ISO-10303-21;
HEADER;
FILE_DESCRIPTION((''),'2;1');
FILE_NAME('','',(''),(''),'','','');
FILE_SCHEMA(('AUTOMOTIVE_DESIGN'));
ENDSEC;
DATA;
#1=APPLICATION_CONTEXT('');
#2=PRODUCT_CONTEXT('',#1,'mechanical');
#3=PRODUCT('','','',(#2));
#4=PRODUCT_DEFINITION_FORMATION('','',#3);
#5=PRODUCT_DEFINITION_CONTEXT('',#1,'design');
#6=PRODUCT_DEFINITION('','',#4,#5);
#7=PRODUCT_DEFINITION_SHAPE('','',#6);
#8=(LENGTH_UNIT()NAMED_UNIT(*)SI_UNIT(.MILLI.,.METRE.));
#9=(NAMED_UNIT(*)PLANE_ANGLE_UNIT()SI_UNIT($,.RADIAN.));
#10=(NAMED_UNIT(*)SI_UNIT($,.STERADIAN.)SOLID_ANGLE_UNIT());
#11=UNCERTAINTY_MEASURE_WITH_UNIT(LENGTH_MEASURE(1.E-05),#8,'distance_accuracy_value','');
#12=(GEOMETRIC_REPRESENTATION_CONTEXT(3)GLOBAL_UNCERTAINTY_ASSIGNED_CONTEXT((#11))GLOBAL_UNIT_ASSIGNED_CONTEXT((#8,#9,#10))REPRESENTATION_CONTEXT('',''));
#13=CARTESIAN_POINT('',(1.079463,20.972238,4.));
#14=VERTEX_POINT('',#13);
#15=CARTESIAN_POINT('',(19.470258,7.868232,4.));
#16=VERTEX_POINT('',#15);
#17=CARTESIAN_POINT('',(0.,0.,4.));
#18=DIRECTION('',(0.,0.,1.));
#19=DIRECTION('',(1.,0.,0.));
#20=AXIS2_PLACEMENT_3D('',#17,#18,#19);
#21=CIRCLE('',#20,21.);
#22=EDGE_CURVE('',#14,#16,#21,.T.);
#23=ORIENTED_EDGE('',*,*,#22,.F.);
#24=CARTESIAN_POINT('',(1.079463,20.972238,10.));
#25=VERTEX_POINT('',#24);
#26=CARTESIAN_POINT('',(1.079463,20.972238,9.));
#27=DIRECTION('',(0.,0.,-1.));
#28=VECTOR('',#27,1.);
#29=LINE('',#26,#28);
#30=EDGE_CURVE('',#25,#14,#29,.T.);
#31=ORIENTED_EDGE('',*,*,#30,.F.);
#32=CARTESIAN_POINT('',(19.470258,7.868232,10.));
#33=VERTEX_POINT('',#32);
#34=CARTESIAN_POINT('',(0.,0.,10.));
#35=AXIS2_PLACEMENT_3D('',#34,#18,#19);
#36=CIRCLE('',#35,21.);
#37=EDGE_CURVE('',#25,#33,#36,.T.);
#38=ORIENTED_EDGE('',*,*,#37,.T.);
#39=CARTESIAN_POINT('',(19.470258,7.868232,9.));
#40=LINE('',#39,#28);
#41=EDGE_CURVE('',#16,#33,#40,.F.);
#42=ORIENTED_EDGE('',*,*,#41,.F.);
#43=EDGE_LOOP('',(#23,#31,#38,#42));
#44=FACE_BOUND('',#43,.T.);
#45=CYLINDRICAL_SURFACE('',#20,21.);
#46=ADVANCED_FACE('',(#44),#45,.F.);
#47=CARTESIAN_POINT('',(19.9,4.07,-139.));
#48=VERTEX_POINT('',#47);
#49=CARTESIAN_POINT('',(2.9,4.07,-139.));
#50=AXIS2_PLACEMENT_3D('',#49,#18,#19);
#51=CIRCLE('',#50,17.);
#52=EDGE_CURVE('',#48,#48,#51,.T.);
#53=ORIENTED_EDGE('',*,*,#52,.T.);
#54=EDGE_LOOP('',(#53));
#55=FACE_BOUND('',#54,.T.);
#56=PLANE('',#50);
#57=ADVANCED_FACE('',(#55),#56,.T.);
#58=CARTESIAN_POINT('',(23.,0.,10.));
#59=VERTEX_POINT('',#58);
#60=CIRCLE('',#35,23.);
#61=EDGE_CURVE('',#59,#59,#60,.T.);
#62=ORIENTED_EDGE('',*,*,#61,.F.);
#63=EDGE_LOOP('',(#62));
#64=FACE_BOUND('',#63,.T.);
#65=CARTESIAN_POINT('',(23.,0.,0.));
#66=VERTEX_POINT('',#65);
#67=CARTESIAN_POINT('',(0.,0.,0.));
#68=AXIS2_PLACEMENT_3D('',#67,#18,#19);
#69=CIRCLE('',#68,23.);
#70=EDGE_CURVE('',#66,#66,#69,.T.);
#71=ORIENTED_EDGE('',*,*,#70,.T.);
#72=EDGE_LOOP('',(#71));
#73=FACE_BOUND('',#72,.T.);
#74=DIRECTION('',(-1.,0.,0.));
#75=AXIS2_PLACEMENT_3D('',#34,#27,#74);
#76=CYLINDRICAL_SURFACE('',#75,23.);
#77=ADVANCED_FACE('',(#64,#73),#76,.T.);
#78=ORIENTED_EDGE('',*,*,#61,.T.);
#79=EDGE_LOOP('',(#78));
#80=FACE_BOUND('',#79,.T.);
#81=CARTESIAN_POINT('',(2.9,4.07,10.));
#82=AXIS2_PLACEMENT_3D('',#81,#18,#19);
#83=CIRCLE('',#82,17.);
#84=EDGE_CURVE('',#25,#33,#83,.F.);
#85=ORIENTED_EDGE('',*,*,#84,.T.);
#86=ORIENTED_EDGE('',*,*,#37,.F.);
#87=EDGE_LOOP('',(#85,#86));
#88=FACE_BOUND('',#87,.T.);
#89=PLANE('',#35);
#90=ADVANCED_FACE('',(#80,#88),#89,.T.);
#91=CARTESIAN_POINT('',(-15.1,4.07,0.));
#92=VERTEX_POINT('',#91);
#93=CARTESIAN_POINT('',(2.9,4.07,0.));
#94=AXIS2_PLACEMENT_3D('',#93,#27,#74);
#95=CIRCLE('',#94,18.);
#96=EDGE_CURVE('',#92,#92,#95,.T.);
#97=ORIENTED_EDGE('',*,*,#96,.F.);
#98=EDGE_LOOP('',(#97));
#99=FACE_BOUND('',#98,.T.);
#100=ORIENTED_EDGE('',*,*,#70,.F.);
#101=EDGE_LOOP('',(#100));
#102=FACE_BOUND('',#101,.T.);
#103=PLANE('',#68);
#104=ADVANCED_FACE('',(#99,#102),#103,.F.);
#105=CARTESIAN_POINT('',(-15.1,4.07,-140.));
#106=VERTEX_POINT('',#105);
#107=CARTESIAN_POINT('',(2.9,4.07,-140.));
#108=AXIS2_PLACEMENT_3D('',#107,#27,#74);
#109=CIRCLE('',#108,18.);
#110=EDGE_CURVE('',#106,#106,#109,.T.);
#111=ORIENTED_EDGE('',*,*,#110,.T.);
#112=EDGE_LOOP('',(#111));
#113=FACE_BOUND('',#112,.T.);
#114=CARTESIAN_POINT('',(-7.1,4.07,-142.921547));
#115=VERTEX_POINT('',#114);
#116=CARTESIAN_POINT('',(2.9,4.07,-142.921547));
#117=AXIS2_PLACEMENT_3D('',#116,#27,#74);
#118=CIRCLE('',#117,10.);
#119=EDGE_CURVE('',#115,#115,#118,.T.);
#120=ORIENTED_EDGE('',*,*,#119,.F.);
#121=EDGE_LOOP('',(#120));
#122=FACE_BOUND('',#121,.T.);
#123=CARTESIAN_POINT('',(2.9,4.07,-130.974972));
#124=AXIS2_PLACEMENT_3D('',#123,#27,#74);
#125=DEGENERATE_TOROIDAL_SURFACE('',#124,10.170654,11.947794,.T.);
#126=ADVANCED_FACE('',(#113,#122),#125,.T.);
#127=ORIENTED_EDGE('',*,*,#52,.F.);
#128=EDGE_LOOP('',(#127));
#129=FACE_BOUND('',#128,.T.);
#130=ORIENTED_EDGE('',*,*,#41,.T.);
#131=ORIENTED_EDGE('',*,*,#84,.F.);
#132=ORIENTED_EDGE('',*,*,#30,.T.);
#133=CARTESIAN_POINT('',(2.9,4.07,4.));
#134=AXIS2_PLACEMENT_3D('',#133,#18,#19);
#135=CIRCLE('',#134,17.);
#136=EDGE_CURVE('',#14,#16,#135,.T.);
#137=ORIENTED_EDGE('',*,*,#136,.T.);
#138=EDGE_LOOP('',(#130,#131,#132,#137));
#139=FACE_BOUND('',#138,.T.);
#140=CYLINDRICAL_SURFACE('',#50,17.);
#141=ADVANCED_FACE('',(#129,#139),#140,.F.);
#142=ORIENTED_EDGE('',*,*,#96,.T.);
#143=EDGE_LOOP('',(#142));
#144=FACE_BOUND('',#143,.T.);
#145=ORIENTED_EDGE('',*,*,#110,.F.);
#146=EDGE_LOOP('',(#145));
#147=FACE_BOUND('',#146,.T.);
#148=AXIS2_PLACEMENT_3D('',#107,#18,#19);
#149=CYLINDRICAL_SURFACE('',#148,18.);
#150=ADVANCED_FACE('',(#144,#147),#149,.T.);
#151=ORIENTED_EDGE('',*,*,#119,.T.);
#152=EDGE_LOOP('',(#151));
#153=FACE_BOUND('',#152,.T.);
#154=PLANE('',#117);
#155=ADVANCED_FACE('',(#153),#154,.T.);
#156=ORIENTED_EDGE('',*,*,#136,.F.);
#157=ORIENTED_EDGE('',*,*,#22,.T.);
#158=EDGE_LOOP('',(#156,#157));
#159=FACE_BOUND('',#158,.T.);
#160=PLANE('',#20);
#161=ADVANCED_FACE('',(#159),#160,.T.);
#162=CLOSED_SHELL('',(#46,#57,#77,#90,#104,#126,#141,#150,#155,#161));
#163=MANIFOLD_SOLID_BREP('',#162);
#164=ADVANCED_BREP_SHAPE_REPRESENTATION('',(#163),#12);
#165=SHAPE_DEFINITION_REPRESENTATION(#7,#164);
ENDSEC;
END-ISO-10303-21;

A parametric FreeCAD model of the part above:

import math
import FreeCAD as App
import Part
import Sketcher
from FreeCAD import Vector

doc = App.newDocument("Part")
body = doc.addObject("PartDesign::Body", "Body")

sketch1 = body.newObject("Sketcher::SketchObject", "Sketch")
sketch1.AttachmentSupport = (doc.getObject("XY_Plane"), [""])
sketch1.MapMode = "FlatFace"
sketch1.addGeometry(Part.Circle(Vector(0, 0, 0), Vector(0, 0, 1), 23), False)
sketch1.addConstraint([
    Sketcher.Constraint("Coincident", 0, 3, -1, 1),
    Sketcher.Constraint("Diameter", 0, 46.0),
])
pad1 = body.newObject("PartDesign::Pad", "Pad")
pad1.Profile = sketch1
pad1.Length = 10

sketch2 = body.newObject("Sketcher::SketchObject", "Sketch001")
sketch2.AttachmentSupport = (doc.getObject("XY_Plane"), [""])
sketch2.MapMode = "FlatFace"
sketch2.addGeometry(Part.Circle(Vector(3, 4, 0), Vector(0, 0, 1), 18), False)
sketch2.addConstraint([
    Sketcher.Constraint("Diameter", 0, 36.0),
    Sketcher.Constraint("DistanceX", -1, 1, 0, 3, 2.9),
    Sketcher.Constraint("DistanceY", -1, 1, 0, 3, 4.07),
])
pad2 = body.newObject("PartDesign::Pad", "Pad001")
pad2.Profile = sketch2
pad2.Length = 140
pad2.Reversed = True

sketch3 = body.newObject("Sketcher::SketchObject", "Sketch002")
sketch3.AttachmentSupport = (doc.getObject("XY_Plane"), [""])
sketch3.MapMode = "FlatFace"
sketch3.AttachmentOffset = App.Placement(Vector(0, 0, 10), App.Rotation())
sketch3.addGeometry(Part.Circle(Vector(0, 0, 0), Vector(0, 0, 1), 21), False)
sketch3.addConstraint([
    Sketcher.Constraint("Coincident", 0, 3, -1, 1),
    Sketcher.Constraint("Diameter", 0, 42.0),
])
pocket1 = body.newObject("PartDesign::Pocket", "Pocket")
pocket1.Profile = sketch3
pocket1.Length = 6

sketch4 = body.newObject("Sketcher::SketchObject", "Sketch003")
sketch4.AttachmentSupport = (doc.getObject("XY_Plane"), [""])
sketch4.MapMode = "FlatFace"
sketch4.AttachmentOffset = App.Placement(Vector(0, 0, 4), App.Rotation())
sketch4.addGeometry(Part.Circle(Vector(3, 4, 0), Vector(0, 0, 1), 17), False)
sketch4.addConstraint([
    Sketcher.Constraint("Diameter", 0, 34.0),
    Sketcher.Constraint("DistanceX", -1, 1, 0, 3, 2.9),
    Sketcher.Constraint("DistanceY", -1, 1, 0, 3, 4.07),
])
pocket2 = body.newObject("PartDesign::Pocket", "Pocket001")
pocket2.Profile = sketch4
pocket2.Length = 143

sketch5 = body.newObject("Sketcher::SketchObject", "Sketch004")
sketch5.AttachmentSupport = (doc.getObject("XY_Plane"), [""])
sketch5.MapMode = "FlatFace"
sketch5.AttachmentOffset = App.Placement(Vector(0, 0, 14), App.Rotation())
sketch5.addGeometry(Part.Circle(Vector(3, 4, 0), Vector(0, 0, 1), 17), False)
sketch5.addConstraint([
    Sketcher.Constraint("Diameter", 0, 34.0),
    Sketcher.Constraint("DistanceX", -1, 1, 0, 3, 2.9),
    Sketcher.Constraint("DistanceY", -1, 1, 0, 3, 4.07),
])
pocket3 = body.newObject("PartDesign::Pocket", "Pocket002")
pocket3.Profile = sketch5
pocket3.Length = 10

sketch6 = body.newObject("Sketcher::SketchObject", "Sketch005")
sketch6.AttachmentSupport = (doc.getObject("XZ_Plane"), [""])
sketch6.MapMode = "FlatFace"
sketch6.AttachmentOffset = App.Placement(Vector(0, 0, -4.07), App.Rotation())
sketch6.addGeometry([
    Part.LineSegment(Vector(2.9, -142.9, 0), Vector(-7.1, -142.9, 0)),
    Part.ArcOfCircle(Part.Circle(Vector(-7.3, -131, 0), Vector(0, 0, 1), 11.9), math.radians(-131), math.radians(-89)),
    Part.LineSegment(Vector(-15.1, -140, 0), Vector(2.9, -140, 0)),
    Part.LineSegment(Vector(2.9, -140, 0), Vector(2.9, -142.9, 0)),
], False)
sketch6.addGeometry(Part.LineSegment(Vector(2.9, -142.9, 0), Vector(2.9, -131, 0)), True)
sketch6.addConstraint([
    Sketcher.Constraint("Coincident", 0, 2, 1, 2),
    Sketcher.Constraint("Coincident", 1, 1, 2, 1),
    Sketcher.Constraint("Coincident", 2, 2, 3, 1),
    Sketcher.Constraint("Coincident", 3, 2, 0, 1),
    Sketcher.Constraint("Horizontal", 0),
    Sketcher.Constraint("Horizontal", 2),
    Sketcher.Constraint("Vertical", 3),
    Sketcher.Constraint("Vertical", 4),
    Sketcher.Constraint("Coincident", 4, 1, 3, 2),
    Sketcher.Constraint("Horizontal", 1, 3, 4, 2),
    Sketcher.Constraint("DistanceX", 0, 2, 0, 1, 10.0),
    Sketcher.Constraint("DistanceX", 2, 1, 2, 2, 18.0),
    Sketcher.Constraint("DistanceY", 1, 1, -1, 1, 140.0),
    Sketcher.Constraint("DistanceX", 0, 2, -1, 1, 7.1),
    Sketcher.Constraint("Radius", 1, 11.947794),
    Sketcher.Constraint("DistanceY", 3, 2, 3, 1, 2.921547),
])
revolution = body.newObject("PartDesign::Revolution", "Revolution")
revolution.Profile = sketch6
revolution.ReferenceAxis = (sketch6, ["Axis0"])
revolution.Angle = 360

doc.recompute()
